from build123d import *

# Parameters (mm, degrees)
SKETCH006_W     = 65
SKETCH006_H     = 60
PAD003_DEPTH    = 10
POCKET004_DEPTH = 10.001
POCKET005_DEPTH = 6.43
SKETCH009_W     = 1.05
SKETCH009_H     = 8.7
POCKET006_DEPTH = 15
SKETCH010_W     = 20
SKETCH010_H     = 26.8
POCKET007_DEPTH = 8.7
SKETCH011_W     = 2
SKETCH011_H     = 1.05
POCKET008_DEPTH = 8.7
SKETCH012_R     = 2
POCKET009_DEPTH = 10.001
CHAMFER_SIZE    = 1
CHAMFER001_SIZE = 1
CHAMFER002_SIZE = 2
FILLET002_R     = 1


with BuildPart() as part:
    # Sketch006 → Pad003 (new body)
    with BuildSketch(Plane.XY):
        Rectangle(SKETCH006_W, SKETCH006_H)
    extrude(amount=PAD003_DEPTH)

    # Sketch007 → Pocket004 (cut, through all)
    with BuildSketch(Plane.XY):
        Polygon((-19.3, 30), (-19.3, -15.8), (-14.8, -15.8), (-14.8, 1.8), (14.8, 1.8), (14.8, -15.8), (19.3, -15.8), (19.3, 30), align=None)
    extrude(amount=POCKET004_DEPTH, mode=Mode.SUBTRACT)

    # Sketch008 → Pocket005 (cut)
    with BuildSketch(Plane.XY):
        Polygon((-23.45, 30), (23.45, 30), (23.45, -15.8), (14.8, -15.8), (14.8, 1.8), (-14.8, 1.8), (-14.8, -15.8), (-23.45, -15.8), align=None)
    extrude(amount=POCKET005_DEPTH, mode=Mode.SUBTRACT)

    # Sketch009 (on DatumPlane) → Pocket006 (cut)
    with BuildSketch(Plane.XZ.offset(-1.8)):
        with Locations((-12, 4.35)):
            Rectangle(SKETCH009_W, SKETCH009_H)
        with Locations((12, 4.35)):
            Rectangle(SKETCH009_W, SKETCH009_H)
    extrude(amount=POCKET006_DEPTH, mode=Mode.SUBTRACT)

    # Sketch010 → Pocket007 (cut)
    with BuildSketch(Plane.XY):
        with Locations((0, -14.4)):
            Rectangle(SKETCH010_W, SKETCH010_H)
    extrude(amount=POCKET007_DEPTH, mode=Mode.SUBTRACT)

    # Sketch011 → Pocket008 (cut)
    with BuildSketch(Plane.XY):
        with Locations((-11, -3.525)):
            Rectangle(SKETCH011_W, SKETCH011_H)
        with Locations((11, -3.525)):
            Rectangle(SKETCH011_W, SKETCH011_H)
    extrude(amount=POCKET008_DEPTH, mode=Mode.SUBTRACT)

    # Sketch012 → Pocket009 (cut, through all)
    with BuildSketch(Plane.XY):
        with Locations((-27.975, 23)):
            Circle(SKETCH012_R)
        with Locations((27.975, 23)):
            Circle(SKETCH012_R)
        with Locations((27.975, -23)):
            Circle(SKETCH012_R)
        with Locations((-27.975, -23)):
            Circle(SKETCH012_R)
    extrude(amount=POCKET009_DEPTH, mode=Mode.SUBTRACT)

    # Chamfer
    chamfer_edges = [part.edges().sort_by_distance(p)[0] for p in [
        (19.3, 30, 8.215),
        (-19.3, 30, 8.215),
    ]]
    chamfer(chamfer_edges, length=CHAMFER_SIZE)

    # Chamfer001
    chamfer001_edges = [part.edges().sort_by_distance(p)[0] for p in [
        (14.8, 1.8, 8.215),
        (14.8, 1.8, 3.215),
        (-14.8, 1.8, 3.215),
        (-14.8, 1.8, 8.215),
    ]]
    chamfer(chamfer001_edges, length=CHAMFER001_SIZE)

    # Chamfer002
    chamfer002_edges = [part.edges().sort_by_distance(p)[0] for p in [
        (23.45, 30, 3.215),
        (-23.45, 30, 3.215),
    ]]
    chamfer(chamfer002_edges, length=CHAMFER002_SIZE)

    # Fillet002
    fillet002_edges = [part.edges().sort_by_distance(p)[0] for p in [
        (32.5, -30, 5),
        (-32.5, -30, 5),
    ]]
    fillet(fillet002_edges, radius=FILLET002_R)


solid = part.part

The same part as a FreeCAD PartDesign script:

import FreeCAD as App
import Part
import Sketcher
from FreeCAD import Vector
Q = App.Units.Quantity


def edges_at(feature, points):
    """Names of the edges that pass closest to the given points."""
    edges = feature.Shape.Edges
    near = lambda p: min(range(len(edges)), key=lambda i: edges[i].distToShape(Part.Vertex(*p))[0])
    return sorted({f"Edge{near(p) + 1}" for p in points})


def add_polygon(sketch, points):
    """Adds a closed chain of lines whose ends are joined by coincident constraints."""
    first, n = sketch.GeometryCount, len(points)
    for a, b in zip(points, points[1:] + points[:1]):
        sketch.addGeometry(Part.LineSegment(App.Vector(*a, 0), App.Vector(*b, 0)), False)
    for i in range(n):
        sketch.addConstraint(Sketcher.Constraint("Coincident", first + i, 2, first + (i + 1) % n, 1))

doc = App.newDocument("Part")
body = doc.addObject("PartDesign::Body", "Body")

sketch1 = body.newObject("Sketcher::SketchObject", "Sketch")
sketch1.AttachmentSupport = (doc.getObject("XY_Plane"), [""])
sketch1.MapMode = "FlatFace"
add_polygon(sketch1, [(-32, 30), (-32, -30), (32, -30), (32, 30)])
sketch1.addConstraint(Sketcher.Constraint("Vertical", 0))
sketch1.addConstraint(Sketcher.Constraint("Horizontal", 1))
sketch1.addConstraint(Sketcher.Constraint("Vertical", 2))
sketch1.addConstraint(Sketcher.Constraint("Horizontal", 3))
sketch1.addConstraint(Sketcher.Constraint("Symmetric", 0, 2, 2, 2, -1, 1))
sketch1.addConstraint(Sketcher.Constraint("DistanceX", 1, 1, 1, 2, Q("65 mm")))
sketch1.addConstraint(Sketcher.Constraint("DistanceY", 0, 2, 0, 1, Q("60 mm")))
pad1 = body.newObject("PartDesign::Pad", "Pad")
pad1.Profile = sketch1
pad1.Length = 10

sketch2 = body.newObject("Sketcher::SketchObject", "Sketch001")
sketch2.AttachmentSupport = (doc.getObject("XY_Plane"), [""])
sketch2.MapMode = "FlatFace"
add_polygon(sketch2, [(-19.3, 30), (-19.3, -15.8), (-14.8, -15.8), (-14.8, 1.8), (14.8, 1.8), (14.8, -15.8), (19.3, -15.8), (19.3, 30)])
sketch2.addConstraint(Sketcher.Constraint("Vertical", 0))
sketch2.addConstraint(Sketcher.Constraint("Horizontal", 1))
sketch2.addConstraint(Sketcher.Constraint("Vertical", 2))
sketch2.addConstraint(Sketcher.Constraint("Horizontal", 3))
sketch2.addConstraint(Sketcher.Constraint("Vertical", 4))
sketch2.addConstraint(Sketcher.Constraint("Horizontal", 5))
sketch2.addConstraint(Sketcher.Constraint("Vertical", 6))
sketch2.addConstraint(Sketcher.Constraint("Horizontal", 7))
sketch2.addConstraint(Sketcher.Constraint("Symmetric", 1, 2, 4, 2, -2))
sketch2.addConstraint(Sketcher.Constraint("Equal", 1, 5))
sketch2.addConstraint(Sketcher.Constraint("DistanceX", 1, 1, 1, 2, Q("4.5 mm")))
sketch2.addConstraint(Sketcher.Constraint("DistanceX", 3, 1, 3, 2, Q("29.6 mm")))
sketch2.addConstraint(Sketcher.Constraint("DistanceY", 0, 2, 0, 1, Q("45.8 mm")))
sketch2.addConstraint(Sketcher.Constraint("DistanceY", 2, 1, 2, 2, Q("17.6 mm")))
sketch2.addConstraint(Sketcher.Constraint("DistanceY", -1, 1, 6, 2, Q("30 mm")))
pocket1 = body.newObject("PartDesign::Pocket", "Pocket")
pocket1.Profile = sketch2
pocket1.Type = "ThroughAll"
pocket1.Reversed = True

sketch3 = body.newObject("Sketcher::SketchObject", "Sketch002")
sketch3.AttachmentSupport = (doc.getObject("XY_Plane"), [""])
sketch3.MapMode = "FlatFace"
add_polygon(sketch3, [(23, 30), (-23, 30), (-23, -16), (-15, -16), (-15, 2), (15, 2), (15, -16), (23, -16)])
sketch3.addConstraint(Sketcher.Constraint("Horizontal", 0))
sketch3.addConstraint(Sketcher.Constraint("Vertical", 1))
sketch3.addConstraint(Sketcher.Constraint("Horizontal", 2))
sketch3.addConstraint(Sketcher.Constraint("Vertical", 3))
sketch3.addConstraint(Sketcher.Constraint("Horizontal", 4))
sketch3.addConstraint(Sketcher.Constraint("Vertical", 5))
sketch3.addConstraint(Sketcher.Constraint("Horizontal", 6))
sketch3.addConstraint(Sketcher.Constraint("Vertical", 7))
sketch3.addConstraint(Sketcher.Constraint("Symmetric", 2, 2, 5, 2, -2))
sketch3.addConstraint(Sketcher.Constraint("Equal", 2, 6))
sketch3.addConstraint(Sketcher.Constraint("DistanceX", 0, 2, 0, 1, Q("46.9 mm")))
sketch3.addConstraint(Sketcher.Constraint("DistanceX", 4, 1, 4, 2, Q("29.6 mm")))
sketch3.addConstraint(Sketcher.Constraint("DistanceY", 1, 2, 1, 1, Q("45.8 mm")))
sketch3.addConstraint(Sketcher.Constraint("DistanceY", 3, 1, 3, 2, Q("17.6 mm")))
sketch3.addConstraint(Sketcher.Constraint("DistanceY", -1, 1, 0, 2, Q("30 mm")))
pocket2 = body.newObject("PartDesign::Pocket", "Pocket001")
pocket2.Profile = sketch3
pocket2.Length = 6.43
pocket2.Reversed = True

sketch4 = body.newObject("Sketcher::SketchObject", "Sketch003")
sketch4.AttachmentSupport = (doc.getObject("XZ_Plane"), [""])
sketch4.MapMode = "FlatFace"
sketch4.AttachmentOffset = App.Placement(Vector(0, 0, -1.8), App.Rotation())
add_polygon(sketch4, [(-12.5, 8.7), (-12.5, 0), (-11.5, 0), (-11.5, 8.7)])
add_polygon(sketch4, [(11.5, 8.7), (11.5, 0), (12.5, 0), (12.5, 8.7)])
sketch4.addConstraint(Sketcher.Constraint("Vertical", 0))
sketch4.addConstraint(Sketcher.Constraint("Horizontal", 1))
sketch4.addConstraint(Sketcher.Constraint("Vertical", 2))
sketch4.addConstraint(Sketcher.Constraint("Horizontal", 3))
sketch4.addConstraint(Sketcher.Constraint("Vertical", 4))
sketch4.addConstraint(Sketcher.Constraint("Horizontal", 5))
sketch4.addConstraint(Sketcher.Constraint("Vertical", 6))
sketch4.addConstraint(Sketcher.Constraint("Horizontal", 7))
sketch4.addConstraint(Sketcher.Constraint("Symmetric", 1, 2, 4, 2, -1, 1))
sketch4.addConstraint(Sketcher.Constraint("Symmetric", 0, 2, 5, 2, -2))
sketch4.addConstraint(Sketcher.Constraint("Horizontal", 3, 2, 6, 2))
sketch4.addConstraint(Sketcher.Constraint("DistanceY", 0, 2, 0, 1, Q("8.7 mm")))
sketch4.addConstraint(Sketcher.Constraint("DistanceX", 0, 2, 4, 2, Q("24 mm")))
sketch4.addConstraint(Sketcher.Constraint("DistanceX", 1, 1, 1, 2, Q("1.05 mm")))
pocket3 = body.newObject("PartDesign::Pocket", "Pocket002")
pocket3.Profile = sketch4
pocket3.Length = 15
pocket3.Reversed = True

sketch5 = body.newObject("Sketcher::SketchObject", "Sketch004")
sketch5.AttachmentSupport = (doc.getObject("XY_Plane"), [""])
sketch5.MapMode = "FlatFace"
add_polygon(sketch5, [(-10, -1), (-10, -28), (10, -28), (10, -1)])
sketch5.addConstraint(Sketcher.Constraint("Vertical", 0))
sketch5.addConstraint(Sketcher.Constraint("Horizontal", 1))
sketch5.addConstraint(Sketcher.Constraint("Vertical", 2))
sketch5.addConstraint(Sketcher.Constraint("Horizontal", 3))
sketch5.addConstraint(Sketcher.Constraint("DistanceX", 1, 1, 1, 2, Q("20 mm")))
sketch5.addConstraint(Sketcher.Constraint("DistanceY", 0, 2, 0, 1, Q("26.8 mm")))
sketch5.addConstraint(Sketcher.Constraint("DistanceX", 0, 2, -1, 1, Q("10 mm")))
sketch5.addConstraint(Sketcher.Constraint("DistanceY", 2, 2, -1, 1, Q("1 mm")))
pocket4 = body.newObject("PartDesign::Pocket", "Pocket003")
pocket4.Profile = sketch5
pocket4.Length = 8.7
pocket4.Reversed = True

sketch6 = body.newObject("Sketcher::SketchObject", "Sketch005")
sketch6.AttachmentSupport = (doc.getObject("XY_Plane"), [""])
sketch6.MapMode = "FlatFace"
add_polygon(sketch6, [(-12, -3), (-12, -4), (-10, -4), (-10, -3)])
add_polygon(sketch6, [(10, -3), (10, -4), (12, -4), (12, -3)])
sketch6.addConstraint(Sketcher.Constraint("Vertical", 0))
sketch6.addConstraint(Sketcher.Constraint("Horizontal", 1))
sketch6.addConstraint(Sketcher.Constraint("Vertical", 2))
sketch6.addConstraint(Sketcher.Constraint("Horizontal", 3))
sketch6.addConstraint(Sketcher.Constraint("Vertical", 4))
sketch6.addConstraint(Sketcher.Constraint("Horizontal", 5))
sketch6.addConstraint(Sketcher.Constraint("Vertical", 6))
sketch6.addConstraint(Sketcher.Constraint("Horizontal", 7))
sketch6.addConstraint(Sketcher.Constraint("Symmetric", 1, 2, 4, 2, -2))
sketch6.addConstraint(Sketcher.Constraint("Symmetric", 3, 2, 6, 2, -2))
sketch6.addConstraint(Sketcher.Constraint("DistanceX", 1, 1, 1, 2, Q("2 mm")))
sketch6.addConstraint(Sketcher.Constraint("DistanceX", 0, 2, -1, 1, Q("12 mm")))
sketch6.addConstraint(Sketcher.Constraint("DistanceY", 2, 2, -1, 1, Q("3 mm")))
sketch6.addConstraint(Sketcher.Constraint("DistanceY", 0, 2, 0, 1, Q("1.05 mm")))
pocket5 = body.newObject("PartDesign::Pocket", "Pocket004")
pocket5.Profile = sketch6
pocket5.Length = 8.7
pocket5.Reversed = True

sketch7 = body.newObject("Sketcher::SketchObject", "Sketch006")
sketch7.AttachmentSupport = (doc.getObject("XY_Plane"), [""])
sketch7.MapMode = "FlatFace"
sketch7.addGeometry(Part.Circle(Vector(-28, 23, 0), Vector(0, 0, 1), 2), False)
sketch7.addGeometry(Part.Circle(Vector(28, 23, 0), Vector(0, 0, 1), 2), False)
sketch7.addGeometry(Part.Circle(Vector(28, -23, 0), Vector(0, 0, 1), 2), False)
sketch7.addGeometry(Part.Circle(Vector(-28, -23, 0), Vector(0, 0, 1), 2), False)
sketch7.addConstraint(Sketcher.Constraint("Equal", 0, 1))
sketch7.addConstraint(Sketcher.Constraint("Equal", 1, 2))
sketch7.addConstraint(Sketcher.Constraint("Equal", 2, 3))
sketch7.addConstraint(Sketcher.Constraint("Symmetric", 0, 3, 2, 3, -1, 1))
sketch7.addConstraint(Sketcher.Constraint("Symmetric", 1, 3, 3, 3, -1, 1))
sketch7.addConstraint(Sketcher.Constraint("Symmetric", 0, 3, 1, 3, -2))
sketch7.addConstraint(Sketcher.Constraint("Diameter", 0, Q("4 mm")))
sketch7.addConstraint(Sketcher.Constraint("DistanceY", -1, 1, 0, 3, Q("23 mm")))
sketch7.addConstraint(Sketcher.Constraint("DistanceX", 0, 3, 1, 3, Q("55.95 mm")))
pocket6 = body.newObject("PartDesign::Pocket", "Pocket005")
pocket6.Profile = sketch7
pocket6.Type = "ThroughAll"
pocket6.Reversed = True
doc.recompute()

chamfer = body.newObject("PartDesign::Chamfer", "Chamfer")
chamfer.Base = (pocket6, edges_at(pocket6, [(19.3, 30, 8.215), (-19.3, 30, 8.215)]))
chamfer.Size = 1
doc.recompute()

chamfer2 = body.newObject("PartDesign::Chamfer", "Chamfer001")
chamfer2.Base = (chamfer, edges_at(chamfer, [
    (14.8, 1.8, 5),
    (14.8, 1.8, 5),
    (-14.8, 1.8, 5),
    (-14.8, 1.8, 5),
]))
chamfer2.Size = 1
doc.recompute()

chamfer3 = body.newObject("PartDesign::Chamfer", "Chamfer002")
chamfer3.Base = (chamfer2, edges_at(chamfer2, [(23.45, 30, 3.215), (-23.45, 30, 3.215)]))
chamfer3.Size = 2
doc.recompute()

fillet = body.newObject("PartDesign::Fillet", "Fillet")
fillet.Base = (chamfer3, edges_at(chamfer3, [(32.5, -30, 5), (-32.5, -30, 5)]))
fillet.Radius = 1

doc.recompute()
